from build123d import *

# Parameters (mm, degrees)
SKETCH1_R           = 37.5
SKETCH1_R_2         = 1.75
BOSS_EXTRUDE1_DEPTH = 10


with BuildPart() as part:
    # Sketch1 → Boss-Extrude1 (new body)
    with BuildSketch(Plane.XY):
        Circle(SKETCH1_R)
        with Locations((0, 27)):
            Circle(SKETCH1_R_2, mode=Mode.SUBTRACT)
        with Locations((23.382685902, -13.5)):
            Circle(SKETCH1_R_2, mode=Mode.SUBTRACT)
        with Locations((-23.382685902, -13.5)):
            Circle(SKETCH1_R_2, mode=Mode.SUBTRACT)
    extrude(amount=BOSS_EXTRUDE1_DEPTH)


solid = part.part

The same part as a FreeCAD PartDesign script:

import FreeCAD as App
import Part
import Sketcher

doc = App.newDocument("Part")
body = doc.addObject("PartDesign::Body", "Body")

# Sketch on XY plane
sketch1 = body.newObject("Sketcher::SketchObject", "Sketch")
sketch1.AttachmentSupport = (doc.getObject("XY_Plane"), [""])
sketch1.MapMode = "FlatFace"
sketch1.addGeometry([
    Part.Circle(App.Vector(0, 0, 0), App.Vector(0, 0, 1), 37.5),
    Part.Circle(App.Vector(-23.4, -13.5, 0), App.Vector(0, 0, 1), 1.8),
    Part.Circle(App.Vector(23.4, -13.5, 0), App.Vector(0, 0, 1), 1.8),
    Part.Circle(App.Vector(0, 27, 0), App.Vector(0, 0, 1), 1.8),
], False)
sketch1.addConstraint([
    Sketcher.Constraint("Coincident", 0, 3, -1, 1),
    Sketcher.Constraint("Equal", 1, 2),
    Sketcher.Constraint("Equal", 2, 3),
    Sketcher.Constraint("Symmetric", 1, 3, 2, 3, -2),
    Sketcher.Constraint("PointOnObject", 3, 3, -2),
    Sketcher.Constraint("Diameter", 0, 75.0),
    Sketcher.Constraint("Diameter", 1, 3.5),
    Sketcher.Constraint("DistanceY", -1, 1, 3, 3, 27.0),
    Sketcher.Constraint("DistanceY", 1, 3, -1, 1, 13.5),
    Sketcher.Constraint("DistanceX", 1, 3, 2, 3, 46.765372),
])
pad1 = body.newObject("PartDesign::Pad", "Pad")
pad1.Profile = sketch1
pad1.Length = 10

doc.recompute()
